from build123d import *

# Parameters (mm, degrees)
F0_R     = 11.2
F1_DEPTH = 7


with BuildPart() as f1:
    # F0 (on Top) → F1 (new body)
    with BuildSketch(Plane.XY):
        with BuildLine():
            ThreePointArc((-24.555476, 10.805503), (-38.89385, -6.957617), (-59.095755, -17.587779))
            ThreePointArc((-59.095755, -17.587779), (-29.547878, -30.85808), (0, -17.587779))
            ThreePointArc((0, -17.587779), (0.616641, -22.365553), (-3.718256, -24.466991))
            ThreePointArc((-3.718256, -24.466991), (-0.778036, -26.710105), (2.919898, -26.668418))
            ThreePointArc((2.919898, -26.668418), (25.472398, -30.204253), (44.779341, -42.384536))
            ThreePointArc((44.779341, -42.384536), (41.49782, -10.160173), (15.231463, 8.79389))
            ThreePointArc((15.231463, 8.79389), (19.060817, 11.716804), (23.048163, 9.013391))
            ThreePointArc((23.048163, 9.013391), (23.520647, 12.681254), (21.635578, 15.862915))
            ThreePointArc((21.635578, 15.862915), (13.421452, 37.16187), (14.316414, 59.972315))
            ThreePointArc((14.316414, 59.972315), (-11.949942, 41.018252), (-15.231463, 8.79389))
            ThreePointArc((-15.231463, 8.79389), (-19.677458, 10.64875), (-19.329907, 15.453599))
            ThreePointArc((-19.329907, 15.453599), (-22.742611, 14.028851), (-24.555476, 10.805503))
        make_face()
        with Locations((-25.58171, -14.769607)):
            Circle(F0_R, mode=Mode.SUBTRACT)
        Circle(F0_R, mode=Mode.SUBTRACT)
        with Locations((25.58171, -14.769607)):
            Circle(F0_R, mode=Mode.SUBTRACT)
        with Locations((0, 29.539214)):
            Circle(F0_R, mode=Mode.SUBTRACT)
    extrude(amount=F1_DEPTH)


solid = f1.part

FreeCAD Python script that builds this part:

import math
import FreeCAD as App
import Part
import Sketcher
from FreeCAD import Vector

doc = App.newDocument("Part")
body = doc.addObject("PartDesign::Body", "Body")

# Sketch on XY plane
sketch1 = body.newObject("Sketcher::SketchObject", "Sketch")
sketch1.AttachmentSupport = (doc.getObject("XY_Plane"), [""])
sketch1.MapMode = "FlatFace"
sketch1.addGeometry([
    Part.ArcOfCircle(Part.Circle(Vector(-74.7, 36.6, 0), Vector(0, 0, 1), 56.4), math.radians(-74), math.radians(-27)),  # 0
    Part.ArcOfCircle(Part.Circle(Vector(-29.5, 8.7, 0), Vector(0, 0, 1), 39.5), math.radians(-138), math.radians(-42)),  # 1
    Part.ArcOfCircle(Part.Circle(Vector(-3, -20.4, 0), Vector(0, 0, 1), 4.1), math.radians(-100), math.radians(43)),  # 2
    Part.ArcOfCircle(Part.Circle(Vector(1, -21.3, 0), Vector(0, 0, 1), 5.7), math.radians(-146), math.radians(-70)),  # 3
    Part.ArcOfCircle(Part.Circle(Vector(5.6, -83, 0), Vector(0, 0, 1), 56.4), math.radians(46), math.radians(93)),  # 4
    Part.ArcOfCircle(Part.Circle(Vector(7.3, -29.9, 0), Vector(0, 0, 1), 39.5), math.radians(-18), math.radians(78)),  # 5
    Part.ArcOfCircle(Part.Circle(Vector(19.2, 7.6, 0), Vector(0, 0, 1), 4.1), math.radians(20), math.radians(163)),  # 6
    Part.ArcOfCircle(Part.Circle(Vector(18, 11.5, 0), Vector(0, 0, 1), 5.7), math.radians(-26), math.radians(50)),  # 7
    Part.ArcOfCircle(Part.Circle(Vector(69.1, 46.4, 0), Vector(0, 0, 1), 56.4), math.radians(166), math.radians(213)),  # 8
    Part.ArcOfCircle(Part.Circle(Vector(22.3, 21.3, 0), Vector(0, 0, 1), 39.5), math.radians(102), math.radians(198)),  # 9
    Part.ArcOfCircle(Part.Circle(Vector(-16.2, 12.8, 0), Vector(0, 0, 1), 4.1), math.radians(140), math.radians(283)),  # 10
    Part.ArcOfCircle(Part.Circle(Vector(-19, 9.8, 0), Vector(0, 0, 1), 5.7), math.radians(94), math.radians(170)),  # 11
    Part.Circle(Vector(-25.6, -14.8, 0), Vector(0, 0, 1), 11.2),  # 12
    Part.Circle(Vector(0, 0, 0), Vector(0, 0, 1), 11.2),  # 13
    Part.Circle(Vector(25.6, -14.8, 0), Vector(0, 0, 1), 11.2),  # 14
    Part.Circle(Vector(0, 29.5, 0), Vector(0, 0, 1), 11.2),  # 15
], False)
sketch1.addConstraint([
    Sketcher.Constraint("Coincident", 0, 1, 1, 1),
    Sketcher.Constraint("Coincident", 1, 2, 2, 2),
    Sketcher.Constraint("Coincident", 2, 1, 3, 1),
    Sketcher.Constraint("Coincident", 3, 2, 4, 2),
    Sketcher.Constraint("Coincident", 4, 1, 5, 1),
    Sketcher.Constraint("Coincident", 5, 2, 6, 2),
    Sketcher.Constraint("Coincident", 6, 1, 7, 1),
    Sketcher.Constraint("Coincident", 7, 2, 8, 2),
    Sketcher.Constraint("Coincident", 8, 1, 9, 1),
    Sketcher.Constraint("Coincident", 9, 2, 10, 2),
    Sketcher.Constraint("Coincident", 10, 1, 11, 1),
    Sketcher.Constraint("Coincident", 11, 2, 0, 2),
    Sketcher.Constraint("Coincident", 13, 3, -1, 1),
    Sketcher.Constraint("Equal", 1, 5),
    Sketcher.Constraint("Equal", 2, 6),
    Sketcher.Constraint("Equal", 3, 7),
    Sketcher.Constraint("Equal", 0, 8),
    Sketcher.Constraint("Equal", 5, 9),
    Sketcher.Constraint("Equal", 6, 10),
    Sketcher.Constraint("Equal", 7, 11),
    Sketcher.Constraint("Equal", 12, 13),
    Sketcher.Constraint("Equal", 13, 14),
    Sketcher.Constraint("Equal", 14, 15),
    Sketcher.Constraint("Symmetric", 12, 3, 14, 3, -2),
    Sketcher.Constraint("Symmetric", 5, 2, 9, 2, -2),
    Sketcher.Constraint("PointOnObject", 15, 3, -2),
    Sketcher.Constraint("PointOnObject", 1, 2, -2),
    Sketcher.Constraint("Horizontal", 0, 1, 1, 2),
    Sketcher.Constraint("Diameter", 12, 22.4),
    Sketcher.Constraint("Radius", 3, 5.681559),
    Sketcher.Constraint("Radius", 0, 56.436836),
    Sketcher.Constraint("Radius", 1, 39.531053),
    Sketcher.Constraint("Radius", 2, 4.123158),
    Sketcher.Constraint("Radius", 4, 56.436825),
    Sketcher.Constraint("DistanceY", 5, 3, -1, 1, 29.9257),
    Sketcher.Constraint("DistanceX", -1, 1, 3, 2, 2.919898),
    Sketcher.Constraint("DistanceY", -1, 1, 10, 1, 15.453599),
    Sketcher.Constraint("DistanceX", 3, 3, 4, 3, 4.6249),
    Sketcher.Constraint("DistanceX", 1, 3, 5, 3, 36.8108),
    Sketcher.Constraint("DistanceY", 6, 3, 1, 3, 1.077702),
    Sketcher.Constraint("DistanceX", 5, 3, 8, 3, 61.834099),
    Sketcher.Constraint("DistanceX", 2, 3, 8, 3, 72.107601),
    Sketcher.Constraint("DistanceY", 3, 2, 2, 3, 6.2634),
    Sketcher.Constraint("DistanceY", 5, 2, 7, 3, 2.739799),
    Sketcher.Constraint("DistanceX", 5, 2, 6, 1, 7.8167),
    Sketcher.Constraint("DistanceY", 5, 2, 6, 1, 0.219501),
    Sketcher.Constraint("DistanceY", 15, 3, 8, 1, 30.433101),
    Sketcher.Constraint("DistanceY", 7, 2, 8, 1, 44.1094),
    Sketcher.Constraint("DistanceX", 11, 3, 9, 2, 3.735098),
    Sketcher.Constraint("DistanceX", 1, 3, 11, 2, 4.992402),
    Sketcher.Constraint("DistanceX", 11, 2, 10, 3, 8.389501),
    Sketcher.Constraint("DistanceX", 0, 3, -1, 1, 74.732291),
    Sketcher.Constraint("DistanceY", -1, 1, 0, 3, 36.63966),
    Sketcher.Constraint("DistanceY", 3, 3, -1, 1, 21.317359),
    Sketcher.Constraint("DistanceX", 12, 3, -1, 1, 25.58171),
    Sketcher.Constraint("DistanceX", -1, 1, 7, 2, 21.635578),
    Sketcher.Constraint("DistanceY", 2, 3, 12, 3, 5.635411),
])
pad1 = body.newObject("PartDesign::Pad", "Pad")
pad1.Profile = sketch1
pad1.Length = 7

doc.recompute()
